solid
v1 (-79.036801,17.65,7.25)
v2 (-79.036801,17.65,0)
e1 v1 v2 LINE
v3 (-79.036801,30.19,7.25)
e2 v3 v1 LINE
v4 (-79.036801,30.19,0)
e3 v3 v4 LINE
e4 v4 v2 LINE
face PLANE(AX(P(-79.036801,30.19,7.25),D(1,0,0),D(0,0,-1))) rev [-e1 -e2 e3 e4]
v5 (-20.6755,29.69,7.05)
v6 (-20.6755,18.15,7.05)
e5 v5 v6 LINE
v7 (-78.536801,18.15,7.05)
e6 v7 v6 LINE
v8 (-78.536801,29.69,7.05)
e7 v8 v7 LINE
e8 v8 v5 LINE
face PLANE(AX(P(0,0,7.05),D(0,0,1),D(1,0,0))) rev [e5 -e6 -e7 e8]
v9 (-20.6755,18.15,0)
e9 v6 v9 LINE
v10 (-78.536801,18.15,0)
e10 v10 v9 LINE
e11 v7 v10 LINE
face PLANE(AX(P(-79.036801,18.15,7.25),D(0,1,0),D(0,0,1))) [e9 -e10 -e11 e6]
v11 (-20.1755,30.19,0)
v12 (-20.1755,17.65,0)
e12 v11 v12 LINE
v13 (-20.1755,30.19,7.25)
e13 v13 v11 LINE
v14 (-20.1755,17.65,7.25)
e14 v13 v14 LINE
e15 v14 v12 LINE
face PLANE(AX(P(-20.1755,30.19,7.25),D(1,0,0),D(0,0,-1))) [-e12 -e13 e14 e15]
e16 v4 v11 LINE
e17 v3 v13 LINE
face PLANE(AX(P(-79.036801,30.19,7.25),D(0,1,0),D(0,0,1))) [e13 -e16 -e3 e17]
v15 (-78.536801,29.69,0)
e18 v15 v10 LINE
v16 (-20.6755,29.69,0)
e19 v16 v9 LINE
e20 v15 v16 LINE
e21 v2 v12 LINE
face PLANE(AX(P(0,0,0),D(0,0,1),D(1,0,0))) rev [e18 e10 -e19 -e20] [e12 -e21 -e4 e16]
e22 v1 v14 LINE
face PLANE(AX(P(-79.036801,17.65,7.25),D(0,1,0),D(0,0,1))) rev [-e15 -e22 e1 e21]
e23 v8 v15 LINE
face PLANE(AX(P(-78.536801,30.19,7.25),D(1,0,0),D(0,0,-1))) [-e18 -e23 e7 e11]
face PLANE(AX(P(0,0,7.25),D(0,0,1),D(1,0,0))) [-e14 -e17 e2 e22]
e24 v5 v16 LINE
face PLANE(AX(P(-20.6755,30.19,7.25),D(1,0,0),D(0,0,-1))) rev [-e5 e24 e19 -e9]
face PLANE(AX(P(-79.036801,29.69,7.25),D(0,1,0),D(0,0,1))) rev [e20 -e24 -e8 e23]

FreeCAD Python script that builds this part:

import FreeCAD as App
import Part
import Sketcher


def faces_at(feature, points):
    """Names of the faces that lie closest to the given points."""
    faces = feature.Shape.Faces
    near = lambda p: min(range(len(faces)), key=lambda i: faces[i].distToShape(Part.Vertex(*p))[0])
    return sorted({f"Face{near(p) + 1}" for p in points})

doc = App.newDocument("Part")
body = doc.addObject("PartDesign::Body", "Body")

sketch1 = body.newObject("Sketcher::SketchObject", "Sketch")
sketch1.AttachmentSupport = (doc.getObject("XY_Plane"), [""])
sketch1.MapMode = "FlatFace"
sketch1.addGeometry([
    Part.LineSegment(App.Vector(-79, 30, 0), App.Vector(-79, 18, 0)),
    Part.LineSegment(App.Vector(-79, 18, 0), App.Vector(-20, 18, 0)),
    Part.LineSegment(App.Vector(-20, 18, 0), App.Vector(-20, 30, 0)),
    Part.LineSegment(App.Vector(-20, 30, 0), App.Vector(-79, 30, 0)),
], False)
sketch1.addConstraint([
    Sketcher.Constraint("Coincident", 0, 2, 1, 1),
    Sketcher.Constraint("Coincident", 1, 2, 2, 1),
    Sketcher.Constraint("Coincident", 2, 2, 3, 1),
    Sketcher.Constraint("Coincident", 3, 2, 0, 1),
    Sketcher.Constraint("Vertical", 0),
    Sketcher.Constraint("Horizontal", 1),
    Sketcher.Constraint("Vertical", 2),
    Sketcher.Constraint("Horizontal", 3),
    Sketcher.Constraint("DistanceY", 0, 2, 0, 1, 12.54),
    Sketcher.Constraint("DistanceY", -1, 1, 0, 2, 17.65),
    Sketcher.Constraint("DistanceX", 1, 1, 1, 2, 58.861301),
    Sketcher.Constraint("DistanceX", 0, 2, -1, 1, 79.036801),
])
pad1 = body.newObject("PartDesign::Pad", "Pad")
pad1.Profile = sketch1
pad1.Length = 7.25
doc.recompute()

thickness = body.newObject("PartDesign::Thickness", "Thickness")
thickness.Base = (pad1, faces_at(pad1, [(-49.606, 23.92, 0)]))
thickness.Value = 0.5
thickness.Reversed = True
thickness.Join = "Intersection"

sketch2 = body.newObject("Sketcher::SketchObject", "Sketch001")
sketch2.AttachmentSupport = (doc.getObject("XY_Plane"), [""])
sketch2.MapMode = "FlatFace"
sketch2.AttachmentOffset = App.Placement(App.Vector(0, 0, 6.75), App.Rotation())
sketch2.addGeometry([
    Part.LineSegment(App.Vector(-79, 30, 0), App.Vector(-79, 18, 0)),
    Part.LineSegment(App.Vector(-79, 18, 0), App.Vector(-21, 18, 0)),
    Part.LineSegment(App.Vector(-21, 18, 0), App.Vector(-21, 30, 0)),
    Part.LineSegment(App.Vector(-21, 30, 0), App.Vector(-79, 30, 0)),
], False)
sketch2.addConstraint([
    Sketcher.Constraint("Coincident", 0, 2, 1, 1),
    Sketcher.Constraint("Coincident", 1, 2, 2, 1),
    Sketcher.Constraint("Coincident", 2, 2, 3, 1),
    Sketcher.Constraint("Coincident", 3, 2, 0, 1),
    Sketcher.Constraint("Vertical", 0),
    Sketcher.Constraint("Horizontal", 1),
    Sketcher.Constraint("Vertical", 2),
    Sketcher.Constraint("Horizontal", 3),
    Sketcher.Constraint("DistanceY", 0, 2, 0, 1, 11.54),
    Sketcher.Constraint("DistanceY", -1, 1, 0, 2, 18.15),
    Sketcher.Constraint("DistanceX", 1, 1, 1, 2, 57.861301),
    Sketcher.Constraint("DistanceX", 0, 2, -1, 1, 78.536801),
])
pocket1 = body.newObject("PartDesign::Pocket", "Pocket")
pocket1.Profile = sketch2
pocket1.Length = 0.3
pocket1.Reversed = True

doc.recompute()
